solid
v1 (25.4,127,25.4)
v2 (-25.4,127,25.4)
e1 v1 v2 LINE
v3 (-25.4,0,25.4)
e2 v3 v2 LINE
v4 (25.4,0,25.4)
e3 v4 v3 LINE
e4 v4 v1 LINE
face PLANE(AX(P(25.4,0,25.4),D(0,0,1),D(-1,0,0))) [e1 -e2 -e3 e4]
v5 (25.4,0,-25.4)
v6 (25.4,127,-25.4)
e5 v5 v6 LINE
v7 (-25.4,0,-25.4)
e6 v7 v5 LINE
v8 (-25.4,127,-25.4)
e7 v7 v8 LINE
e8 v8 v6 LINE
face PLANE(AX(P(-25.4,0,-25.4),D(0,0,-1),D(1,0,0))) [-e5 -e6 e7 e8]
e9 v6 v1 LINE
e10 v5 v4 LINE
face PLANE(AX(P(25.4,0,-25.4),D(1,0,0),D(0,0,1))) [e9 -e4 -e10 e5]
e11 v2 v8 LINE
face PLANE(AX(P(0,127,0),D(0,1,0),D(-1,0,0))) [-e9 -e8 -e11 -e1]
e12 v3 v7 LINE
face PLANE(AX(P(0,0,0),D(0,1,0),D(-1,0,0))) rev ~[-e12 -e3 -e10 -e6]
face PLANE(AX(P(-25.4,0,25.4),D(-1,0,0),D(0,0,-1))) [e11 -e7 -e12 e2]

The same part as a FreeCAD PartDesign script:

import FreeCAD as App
import Part
import Sketcher

V = App.Vector
Q = App.Units.Quantity


def add_polygon(sketch, points):
    """Adds a closed chain of lines whose ends are joined by coincident constraints."""
    first, n = sketch.GeometryCount, len(points)
    for a, b in zip(points, points[1:] + points[:1]):
        sketch.addGeometry(Part.LineSegment(App.Vector(*a, 0), App.Vector(*b, 0)), False)
    for i in range(n):
        sketch.addConstraint(Sketcher.Constraint("Coincident", first + i, 2, first + (i + 1) % n, 1))

doc = App.newDocument("Part")
body = doc.addObject("PartDesign::Body", "Body")

# Sketch on XZ plane
sketch1 = doc.addObject("Sketcher::SketchObject", "Sketch")
body.addObject(sketch1)
sketch1.AttachmentSupport = (doc.XZ_Plane, [""])
sketch1.MapMode = "FlatFace"
add_polygon(sketch1, [(-25, 25), (25, 25), (25, -25), (-25, -25)])  # lines 0-3
sketch1.addConstraint(Sketcher.Constraint("Horizontal", 0))
sketch1.addConstraint(Sketcher.Constraint("Vertical", 1))
sketch1.addConstraint(Sketcher.Constraint("Horizontal", 2))
sketch1.addConstraint(Sketcher.Constraint("Vertical", 3))
sketch1.addConstraint(Sketcher.Constraint("Symmetric", 0, 2, 2, 2, -1, 1))
sketch1.addConstraint(Sketcher.Constraint("Equal", 2, 1))
sketch1.addConstraint(Sketcher.Constraint("DistanceX", 0, 1, 0, 2, Q("2 in")))
pad1 = doc.addObject("PartDesign::Pad", "Pad")
body.addObject(pad1)
pad1.Profile = sketch1
pad1.Length = Q("5 in")
pad1.Reversed = True

doc.recompute()
